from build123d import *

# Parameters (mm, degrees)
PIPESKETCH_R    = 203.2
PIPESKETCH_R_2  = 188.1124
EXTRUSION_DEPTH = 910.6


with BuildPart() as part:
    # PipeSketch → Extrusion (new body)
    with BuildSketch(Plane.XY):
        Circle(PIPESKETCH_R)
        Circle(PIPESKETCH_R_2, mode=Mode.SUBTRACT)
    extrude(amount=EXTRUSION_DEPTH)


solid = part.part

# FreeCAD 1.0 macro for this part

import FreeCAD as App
import Part
import Sketcher
from FreeCAD import Vector
Q = App.Units.Quantity

doc = App.newDocument("Part")
params = doc.addObject("Spreadsheet::Sheet", "Params")
for row, (alias, value) in enumerate([
    ("sketch1_diameter", "16 in"),
    ("sketch1_diameter2", "14.812 in"),
    ("pad1_length", "910.6 mm"),
], start=1):
    params.set(f"A{row}", alias)
    params.set(f"B{row}", "=" + value)
    params.setAlias(f"B{row}", alias)

body = doc.addObject("PartDesign::Body", "Body")

# Sketch on XY plane
sketch1 = doc.addObject("Sketcher::SketchObject", "Sketch")
body.addObject(sketch1)
sketch1.AttachmentSupport = (doc.XY_Plane, [""])
sketch1.MapMode = "FlatFace"
sketch1.addGeometry([
    Part.Circle(Vector(0, 0, 0), Vector(0, 0, 1), 203),
    Part.Circle(Vector(0, 0, 0), Vector(0, 0, 1), 188),
], False)
sketch1.addConstraint([
    Sketcher.Constraint("Coincident", 0, 3, -1, 1),
    Sketcher.Constraint("Coincident", 1, 3, -1, 1),
    Sketcher.Constraint("Diameter", 0, Q("16 in")),
    Sketcher.Constraint("Diameter", 1, Q("14.812 in")),
])
sketch1.setExpression("Constraints[2]", "Params.sketch1_diameter")
sketch1.setExpression("Constraints[3]", "Params.sketch1_diameter2")
pad1 = doc.addObject("PartDesign::Pad", "Pad")
body.addObject(pad1)
pad1.Profile = sketch1
pad1.setExpression("Length", "Params.pad1_length")

doc.recompute()
